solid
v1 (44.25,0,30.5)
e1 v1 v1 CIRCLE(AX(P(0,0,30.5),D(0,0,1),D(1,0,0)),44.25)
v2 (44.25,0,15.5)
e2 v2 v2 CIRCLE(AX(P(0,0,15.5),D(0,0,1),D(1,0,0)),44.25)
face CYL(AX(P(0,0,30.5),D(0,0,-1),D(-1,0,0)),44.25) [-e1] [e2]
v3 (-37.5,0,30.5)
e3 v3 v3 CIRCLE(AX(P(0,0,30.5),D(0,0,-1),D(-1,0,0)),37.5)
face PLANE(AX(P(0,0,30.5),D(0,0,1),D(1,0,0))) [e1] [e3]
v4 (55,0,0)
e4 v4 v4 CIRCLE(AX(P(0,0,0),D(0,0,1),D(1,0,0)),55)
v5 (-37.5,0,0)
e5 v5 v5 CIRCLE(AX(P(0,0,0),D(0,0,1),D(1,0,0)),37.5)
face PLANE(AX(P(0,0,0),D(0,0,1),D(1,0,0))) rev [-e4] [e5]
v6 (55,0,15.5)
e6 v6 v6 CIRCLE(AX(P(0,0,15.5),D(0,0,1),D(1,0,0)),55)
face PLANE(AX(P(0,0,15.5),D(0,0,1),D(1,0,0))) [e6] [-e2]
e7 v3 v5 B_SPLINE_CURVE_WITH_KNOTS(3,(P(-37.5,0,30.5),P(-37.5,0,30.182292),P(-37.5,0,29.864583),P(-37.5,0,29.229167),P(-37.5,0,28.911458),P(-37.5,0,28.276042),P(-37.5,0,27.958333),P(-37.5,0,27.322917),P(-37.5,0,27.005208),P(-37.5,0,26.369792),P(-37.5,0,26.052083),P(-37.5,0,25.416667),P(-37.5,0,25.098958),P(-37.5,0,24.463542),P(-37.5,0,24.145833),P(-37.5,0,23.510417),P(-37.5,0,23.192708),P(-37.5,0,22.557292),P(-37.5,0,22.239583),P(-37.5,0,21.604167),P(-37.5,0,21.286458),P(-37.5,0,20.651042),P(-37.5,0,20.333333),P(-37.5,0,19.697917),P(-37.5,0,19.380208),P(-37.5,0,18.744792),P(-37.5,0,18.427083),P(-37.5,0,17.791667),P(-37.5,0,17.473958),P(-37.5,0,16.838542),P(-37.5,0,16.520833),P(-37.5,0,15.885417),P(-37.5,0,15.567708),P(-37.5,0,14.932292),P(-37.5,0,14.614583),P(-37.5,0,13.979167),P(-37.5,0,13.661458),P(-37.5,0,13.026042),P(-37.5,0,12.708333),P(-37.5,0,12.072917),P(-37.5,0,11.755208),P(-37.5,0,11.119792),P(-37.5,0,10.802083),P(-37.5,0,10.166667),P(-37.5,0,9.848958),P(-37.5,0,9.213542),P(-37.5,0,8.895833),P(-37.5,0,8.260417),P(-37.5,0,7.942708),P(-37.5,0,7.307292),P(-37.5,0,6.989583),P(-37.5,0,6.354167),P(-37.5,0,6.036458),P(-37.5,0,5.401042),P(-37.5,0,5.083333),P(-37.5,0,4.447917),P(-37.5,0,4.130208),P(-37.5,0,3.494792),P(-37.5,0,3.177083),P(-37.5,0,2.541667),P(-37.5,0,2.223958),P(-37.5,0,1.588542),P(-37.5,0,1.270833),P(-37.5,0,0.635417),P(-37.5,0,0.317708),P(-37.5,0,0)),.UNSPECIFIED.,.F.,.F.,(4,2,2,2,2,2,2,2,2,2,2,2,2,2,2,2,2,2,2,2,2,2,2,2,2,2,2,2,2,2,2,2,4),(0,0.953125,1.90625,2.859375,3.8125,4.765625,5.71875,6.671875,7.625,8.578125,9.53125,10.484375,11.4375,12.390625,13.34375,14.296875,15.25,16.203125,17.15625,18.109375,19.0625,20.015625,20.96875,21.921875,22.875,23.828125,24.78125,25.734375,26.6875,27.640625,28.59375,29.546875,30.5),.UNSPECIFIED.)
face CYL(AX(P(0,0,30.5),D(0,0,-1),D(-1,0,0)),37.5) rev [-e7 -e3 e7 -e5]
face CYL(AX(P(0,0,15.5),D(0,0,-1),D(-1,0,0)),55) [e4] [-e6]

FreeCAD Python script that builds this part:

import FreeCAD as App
import Part
import Sketcher
from FreeCAD import Vector

doc = App.newDocument("Part")
body = doc.addObject("PartDesign::Body", "Body")

# Sketch on XY plane
sketch1 = body.newObject("Sketcher::SketchObject", "Sketch")
sketch1.AttachmentSupport = (doc.getObject("XY_Plane"), [""])
sketch1.MapMode = "FlatFace"
sketch1.addGeometry(Part.Circle(Vector(0, 0, 0), Vector(0, 0, 1), 55), False)
sketch1.addConstraint(Sketcher.Constraint("Coincident", 0, 3, -1, 1))
sketch1.addConstraint(Sketcher.Constraint("Diameter", 0, 110.0))
pad1 = body.newObject("PartDesign::Pad", "Pad")
pad1.Profile = sketch1
pad1.Length = 15.5

# Sketch on XY plane
sketch2 = body.newObject("Sketcher::SketchObject", "Sketch001")
sketch2.AttachmentSupport = (doc.getObject("XY_Plane"), [""])
sketch2.MapMode = "FlatFace"
sketch2.AttachmentOffset = App.Placement(Vector(0, 0, 15.5), App.Rotation())
sketch2.addGeometry(Part.Circle(Vector(0, 0, 0), Vector(0, 0, 1), 44), False)
sketch2.addConstraint(Sketcher.Constraint("Coincident", 0, 3, -1, 1))
sketch2.addConstraint(Sketcher.Constraint("Diameter", 0, 88.5))
pad2 = body.newObject("PartDesign::Pad", "Pad001")
pad2.Profile = sketch2
pad2.Length = 15

# Sketch on XY plane
sketch3 = body.newObject("Sketcher::SketchObject", "Sketch002")
sketch3.AttachmentSupport = (doc.getObject("XY_Plane"), [""])
sketch3.MapMode = "FlatFace"
sketch3.addGeometry(Part.Circle(Vector(0, 0, 0), Vector(0, 0, 1), 38), False)
sketch3.addConstraint(Sketcher.Constraint("Coincident", 0, 3, -1, 1))
sketch3.addConstraint(Sketcher.Constraint("Diameter", 0, 75.0))
pocket1 = body.newObject("PartDesign::Pocket", "Pocket")
pocket1.Profile = sketch3
pocket1.Type = "ThroughAll"
pocket1.Midplane = True

doc.recompute()
